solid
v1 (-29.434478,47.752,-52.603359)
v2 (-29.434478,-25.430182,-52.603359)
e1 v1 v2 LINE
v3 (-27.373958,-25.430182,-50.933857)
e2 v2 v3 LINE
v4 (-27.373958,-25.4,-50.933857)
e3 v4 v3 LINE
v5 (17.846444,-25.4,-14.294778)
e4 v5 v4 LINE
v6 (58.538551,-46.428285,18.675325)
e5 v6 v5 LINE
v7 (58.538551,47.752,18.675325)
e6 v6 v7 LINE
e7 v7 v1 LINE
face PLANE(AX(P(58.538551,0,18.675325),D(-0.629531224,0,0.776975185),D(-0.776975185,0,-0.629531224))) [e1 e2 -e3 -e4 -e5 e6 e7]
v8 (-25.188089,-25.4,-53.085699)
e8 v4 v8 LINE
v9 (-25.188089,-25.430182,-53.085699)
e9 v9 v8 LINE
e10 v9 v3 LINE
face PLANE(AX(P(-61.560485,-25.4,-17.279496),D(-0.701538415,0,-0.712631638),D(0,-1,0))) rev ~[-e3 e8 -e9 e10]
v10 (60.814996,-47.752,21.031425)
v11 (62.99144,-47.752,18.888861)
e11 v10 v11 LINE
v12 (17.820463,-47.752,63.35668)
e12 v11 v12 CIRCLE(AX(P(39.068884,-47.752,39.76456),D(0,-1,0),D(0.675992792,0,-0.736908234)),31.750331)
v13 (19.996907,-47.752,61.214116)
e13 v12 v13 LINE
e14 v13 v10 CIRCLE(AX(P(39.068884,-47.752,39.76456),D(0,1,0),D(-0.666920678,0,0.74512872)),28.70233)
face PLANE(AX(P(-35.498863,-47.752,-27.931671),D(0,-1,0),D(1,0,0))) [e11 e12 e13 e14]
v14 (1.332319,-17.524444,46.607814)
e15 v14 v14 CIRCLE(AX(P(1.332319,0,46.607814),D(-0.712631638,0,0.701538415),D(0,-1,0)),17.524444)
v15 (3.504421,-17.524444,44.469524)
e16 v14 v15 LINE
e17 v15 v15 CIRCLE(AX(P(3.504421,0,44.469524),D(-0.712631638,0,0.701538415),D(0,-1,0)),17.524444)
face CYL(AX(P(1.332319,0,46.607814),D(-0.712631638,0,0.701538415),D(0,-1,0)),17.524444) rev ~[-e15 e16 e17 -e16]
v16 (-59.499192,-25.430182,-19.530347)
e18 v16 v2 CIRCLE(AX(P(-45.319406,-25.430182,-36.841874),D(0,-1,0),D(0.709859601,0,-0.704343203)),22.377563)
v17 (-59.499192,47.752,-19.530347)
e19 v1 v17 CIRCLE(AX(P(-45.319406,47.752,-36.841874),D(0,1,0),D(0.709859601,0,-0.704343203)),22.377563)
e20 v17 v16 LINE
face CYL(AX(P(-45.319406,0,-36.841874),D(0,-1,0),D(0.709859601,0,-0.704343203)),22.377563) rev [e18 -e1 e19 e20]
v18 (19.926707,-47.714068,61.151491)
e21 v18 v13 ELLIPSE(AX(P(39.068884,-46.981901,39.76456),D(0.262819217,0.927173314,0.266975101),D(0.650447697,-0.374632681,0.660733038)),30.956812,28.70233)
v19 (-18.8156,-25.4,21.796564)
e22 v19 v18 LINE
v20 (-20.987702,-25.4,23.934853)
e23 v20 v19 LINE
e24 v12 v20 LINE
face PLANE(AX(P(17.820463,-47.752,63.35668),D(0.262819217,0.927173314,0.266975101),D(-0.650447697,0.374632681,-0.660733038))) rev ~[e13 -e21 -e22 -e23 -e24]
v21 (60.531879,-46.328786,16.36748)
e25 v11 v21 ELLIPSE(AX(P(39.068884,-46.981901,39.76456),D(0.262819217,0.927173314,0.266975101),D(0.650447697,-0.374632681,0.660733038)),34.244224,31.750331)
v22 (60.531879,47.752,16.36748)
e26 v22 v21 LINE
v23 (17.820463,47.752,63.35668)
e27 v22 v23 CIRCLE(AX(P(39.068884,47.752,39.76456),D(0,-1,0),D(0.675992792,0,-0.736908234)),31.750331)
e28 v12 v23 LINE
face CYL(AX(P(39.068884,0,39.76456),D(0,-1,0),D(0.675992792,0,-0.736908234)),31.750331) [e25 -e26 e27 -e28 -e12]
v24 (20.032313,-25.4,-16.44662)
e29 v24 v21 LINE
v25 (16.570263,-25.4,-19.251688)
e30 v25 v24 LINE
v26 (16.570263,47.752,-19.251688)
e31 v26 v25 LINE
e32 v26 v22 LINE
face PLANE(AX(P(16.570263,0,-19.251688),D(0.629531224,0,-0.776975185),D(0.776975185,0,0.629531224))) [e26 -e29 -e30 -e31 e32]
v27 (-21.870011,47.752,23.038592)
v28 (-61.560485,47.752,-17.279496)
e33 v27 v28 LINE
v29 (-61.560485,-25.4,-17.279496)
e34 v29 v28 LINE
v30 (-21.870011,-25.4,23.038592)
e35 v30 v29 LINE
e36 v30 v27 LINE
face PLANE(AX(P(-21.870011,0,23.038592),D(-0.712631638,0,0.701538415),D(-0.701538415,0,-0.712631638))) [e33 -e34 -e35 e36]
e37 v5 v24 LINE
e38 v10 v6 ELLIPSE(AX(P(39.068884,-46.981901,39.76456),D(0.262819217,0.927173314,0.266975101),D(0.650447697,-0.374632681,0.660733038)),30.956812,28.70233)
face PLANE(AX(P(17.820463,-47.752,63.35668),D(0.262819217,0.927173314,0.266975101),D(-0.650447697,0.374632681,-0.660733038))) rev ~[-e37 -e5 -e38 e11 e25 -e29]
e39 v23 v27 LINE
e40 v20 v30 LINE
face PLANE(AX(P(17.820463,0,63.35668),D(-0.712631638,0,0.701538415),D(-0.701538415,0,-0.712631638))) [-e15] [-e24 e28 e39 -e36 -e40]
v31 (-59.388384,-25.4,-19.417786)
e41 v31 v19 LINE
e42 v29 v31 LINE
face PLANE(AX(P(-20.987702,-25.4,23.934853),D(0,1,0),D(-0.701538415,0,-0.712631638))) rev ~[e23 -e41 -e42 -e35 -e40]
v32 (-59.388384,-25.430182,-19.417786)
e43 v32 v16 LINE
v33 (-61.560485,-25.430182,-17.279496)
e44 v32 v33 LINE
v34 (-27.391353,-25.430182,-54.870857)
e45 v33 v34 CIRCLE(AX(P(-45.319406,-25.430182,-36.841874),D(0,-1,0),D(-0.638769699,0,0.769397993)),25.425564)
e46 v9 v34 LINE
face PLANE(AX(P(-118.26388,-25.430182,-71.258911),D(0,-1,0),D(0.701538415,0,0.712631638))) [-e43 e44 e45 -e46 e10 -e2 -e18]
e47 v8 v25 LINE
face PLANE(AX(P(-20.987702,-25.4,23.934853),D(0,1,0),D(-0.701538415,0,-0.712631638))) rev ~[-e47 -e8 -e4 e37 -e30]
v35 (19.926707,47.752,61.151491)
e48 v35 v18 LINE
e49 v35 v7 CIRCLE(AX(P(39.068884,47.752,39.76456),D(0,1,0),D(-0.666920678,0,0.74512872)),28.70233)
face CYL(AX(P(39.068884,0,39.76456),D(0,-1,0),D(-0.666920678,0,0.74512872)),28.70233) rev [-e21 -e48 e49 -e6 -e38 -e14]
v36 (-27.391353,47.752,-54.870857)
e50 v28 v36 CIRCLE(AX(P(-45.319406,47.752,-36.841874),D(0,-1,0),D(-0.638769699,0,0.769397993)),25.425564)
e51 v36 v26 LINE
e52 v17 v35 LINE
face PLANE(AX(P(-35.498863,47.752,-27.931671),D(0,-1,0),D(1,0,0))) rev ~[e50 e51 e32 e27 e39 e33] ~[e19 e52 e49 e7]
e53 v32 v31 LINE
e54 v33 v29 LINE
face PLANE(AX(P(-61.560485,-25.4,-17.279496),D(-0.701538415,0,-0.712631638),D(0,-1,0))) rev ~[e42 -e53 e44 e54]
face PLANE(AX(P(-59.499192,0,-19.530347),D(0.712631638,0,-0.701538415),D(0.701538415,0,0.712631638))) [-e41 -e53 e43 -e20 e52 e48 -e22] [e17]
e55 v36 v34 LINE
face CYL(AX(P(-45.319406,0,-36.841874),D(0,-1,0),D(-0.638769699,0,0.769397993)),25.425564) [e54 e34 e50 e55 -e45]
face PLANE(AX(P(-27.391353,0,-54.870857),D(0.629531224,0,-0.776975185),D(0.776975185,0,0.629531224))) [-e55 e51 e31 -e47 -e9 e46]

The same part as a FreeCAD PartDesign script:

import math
import FreeCAD as App
import Part
import Sketcher

V = App.Vector
Q = App.Units.Quantity

doc = App.newDocument("Part")
body = doc.addObject("PartDesign::Body", "Body")

# Sketch on XZ plane
sketch1 = body.newObject("Sketcher::SketchObject", "Sketch")
sketch1.AttachmentSupport = (doc.getObject("XZ_Plane"), [""])
sketch1.MapMode = "FlatFace"
sketch1.addGeometry([
    Part.ArcOfCircle(Part.Circle(V(-45, -37, 0), V(0, 0, 1), 25), math.radians(130), math.radians(315)),  # 0
    Part.LineSegment(V(-27, -55, 0), V(17, -19, 0)),  # 1
    Part.LineSegment(V(17, -19, 0), V(61, 16, 0)),  # 2
    Part.ArcOfCircle(Part.Circle(V(39, 40, 0), V(0, 0, 1), 32), math.radians(-47), math.radians(132)),  # 3
    Part.LineSegment(V(18, 63, 0), V(-22, 23, 0)),  # 4
    Part.LineSegment(V(-22, 23, 0), V(-62, -17, 0)),  # 5
    Part.LineSegment(V(59, 19, 0), V(-29, -53, 0)),  # 6
    Part.ArcOfCircle(Part.Circle(V(-45, -37, 0), V(0, 0, 1), 22), math.radians(129), math.radians(315)),  # 7
    Part.LineSegment(V(-59, -20, 0), V(20, 61, 0)),  # 8
    Part.ArcOfCircle(Part.Circle(V(39, 40, 0), V(0, 0, 1), 29), math.radians(-47), math.radians(132)),  # 9
], False)
sketch1.addConstraint([
    Sketcher.Constraint("Coincident", 0, 2, 1, 1),
    Sketcher.Constraint("Coincident", 1, 2, 2, 1),
    Sketcher.Constraint("Coincident", 2, 2, 3, 1),
    Sketcher.Constraint("Coincident", 3, 2, 4, 1),
    Sketcher.Constraint("Coincident", 4, 2, 5, 1),
    Sketcher.Constraint("Coincident", 5, 2, 0, 1),
    Sketcher.Constraint("Coincident", 6, 2, 7, 2),
    Sketcher.Constraint("Coincident", 7, 1, 8, 1),
    Sketcher.Constraint("Coincident", 8, 2, 9, 2),
    Sketcher.Constraint("Coincident", 9, 1, 6, 1),
    Sketcher.Constraint("Coincident", 7, 3, 0, 3),
    Sketcher.Constraint("Coincident", 9, 3, 3, 3),
    Sketcher.Constraint("Parallel", 1, 2),
    Sketcher.Constraint("Parallel", 4, 5),
    Sketcher.Constraint("Parallel", 2, 6),
    Sketcher.Constraint("Parallel", 5, 8),
    Sketcher.Constraint("Equal", 1, 2),
    Sketcher.Constraint("Equal", 4, 5),
    Sketcher.Constraint("Radius", 3, Q("31.750331 mm")),
    Sketcher.Constraint("Radius", 9, Q("28.70233 mm")),
    Sketcher.Constraint("DistanceX", 3, 3, 2, 2, Q("0.8449998 in")),
    Sketcher.Constraint("Radius", 0, Q("25.425564 mm")),
    Sketcher.Constraint("Radius", 7, Q("22.377563 mm")),
    Sketcher.Constraint("DistanceY", 2, 2, 3, 2, Q("46.9892 mm")),
    Sketcher.Constraint("DistanceX", 1, 2, 3, 2, Q("1.2502 mm")),
    Sketcher.Constraint("DistanceY", 0, 2, 6, 2, Q("2.267498 mm")),
    Sketcher.Constraint("DistanceY", 4, 2, 8, 2, Q("38.112899 mm")),
    Sketcher.Constraint("Distance", 8, Q("113.216749 mm")),
    Sketcher.Constraint("DistanceY", -1, 1, 3, 3, Q("39.76456 mm")),
    Sketcher.Constraint("DistanceY", 1, 2, -1, 1, Q("19.251688 mm")),
    Sketcher.Constraint("DistanceX", -1, 1, 2, 2, Q("60.531879 mm")),
    Sketcher.Constraint("DistanceX", 4, 2, -1, 1, Q("21.870011 mm")),
])
pad1 = body.newObject("PartDesign::Pad", "Pad")
pad1.Profile = sketch1
pad1.Length = Q("3.76 in")
pad1.Midplane = True

# Sketch on an angled plane
sketch2 = body.newObject("Sketcher::SketchObject", "Sketch001")
sketch2.Placement = App.Placement(V(-22.624429, 0, 22.272245), App.Rotation(V(0, -1, 0), V(0.701538415, 0, 0.712631638), V(-0.712631638, 0, 0.701538415), "ZXY"))
sketch2.addGeometry([
    Part.LineSegment(V(48, 58, 0), V(25, 2, 0)),
    Part.LineSegment(V(25, 2, 0), V(25, -56, 0)),
    Part.LineSegment(V(25, -56, 0), V(48, -56, 0)),
    Part.LineSegment(V(48, -56, 0), V(48, 58, 0)),
], False)
sketch2.addConstraint([
    Sketcher.Constraint("Coincident", 0, 2, 1, 1),
    Sketcher.Constraint("Coincident", 1, 2, 2, 1),
    Sketcher.Constraint("Coincident", 2, 2, 3, 1),
    Sketcher.Constraint("Coincident", 3, 2, 0, 1),
    Sketcher.Constraint("Vertical", 1),
    Sketcher.Constraint("Horizontal", 2),
    Sketcher.Constraint("Vertical", 3),
    Sketcher.Constraint("DistanceX", -1, 1, 0, 2, Q("1 in")),
    Sketcher.Constraint("DistanceX", 2, 1, 2, 2, Q("0.88 in")),
    Sketcher.Constraint("DistanceY", 0, 2, 3, 2, Q("2.1779 in")),
    Sketcher.Constraint("DistanceY", 1, 2, 1, 1, Q("57.834016 mm")),
    Sketcher.Constraint("DistanceY", 1, 2, -1, 1, Q("55.500961 mm")),
])
pocket1 = body.newObject("PartDesign::Pocket", "Pocket")
pocket1.Profile = sketch2
pocket1.Type = "ThroughAll"

# Sketch on an angled plane
sketch3 = body.newObject("Sketcher::SketchObject", "Sketch002")
sketch3.Placement = App.Placement(V(-24.434513, 0, 24.054152), App.Rotation(V(0, -1, 0), V(0.701538415, 0, 0.712631638), V(-0.712631638, 0, 0.701538415), "ZXY"))
sketch3.addGeometry([
    Part.LineSegment(V(25, -54, 0), V(25, -134, 0)),
    Part.LineSegment(V(25, -134, 0), V(54, -134, 0)),
    Part.LineSegment(V(54, -134, 0), V(54, -54, 0)),
    Part.LineSegment(V(54, -54, 0), V(25, -54, 0)),
], False)
sketch3.addConstraint([
    Sketcher.Constraint("Coincident", 0, 2, 1, 1),
    Sketcher.Constraint("Coincident", 1, 2, 2, 1),
    Sketcher.Constraint("Coincident", 2, 2, 3, 1),
    Sketcher.Constraint("Coincident", 3, 2, 0, 1),
    Sketcher.Constraint("Vertical", 0),
    Sketcher.Constraint("Horizontal", 1),
    Sketcher.Constraint("Vertical", 2),
    Sketcher.Constraint("Horizontal", 3),
    Sketcher.Constraint("DistanceX", 1, 1, 1, 2, Q("28.57657 mm")),
    Sketcher.Constraint("DistanceY", 0, 2, 0, 1, Q("79.320956 mm")),
    Sketcher.Constraint("DistanceX", -1, 1, 0, 2, Q("25.430182 mm")),
    Sketcher.Constraint("DistanceY", 0, 2, -1, 1, Q("133.74801 mm")),
])
pocket2 = body.newObject("PartDesign::Pocket", "Pocket001")
pocket2.Profile = sketch3
pocket2.Type = "ThroughAll"

# Sketch on an angled plane
sketch4 = body.newObject("Sketcher::SketchObject", "Sketch003")
sketch4.Placement = App.Placement(V(-22.624429, 0, 22.272245), App.Rotation(V(0, -1, 0), V(0.701538415, 0, 0.712631638), V(-0.712631638, 0, 0.701538415), "ZXY"))
sketch4.addGeometry(Part.Circle(V(0, 34, 0), V(0, 0, 1), 18), False)
sketch4.addConstraint([
    Sketcher.Constraint("PointOnObject", 0, 3, -2),
    Sketcher.Constraint("Diameter", 0, Q("35.048888 mm")),
    Sketcher.Constraint("DistanceY", -1, 1, 0, 3, Q("34.148876 mm")),
])
pocket3 = body.newObject("PartDesign::Pocket", "Pocket002")
pocket3.Profile = sketch4
pocket3.Length = Q("0.12 in")

doc.recompute()
